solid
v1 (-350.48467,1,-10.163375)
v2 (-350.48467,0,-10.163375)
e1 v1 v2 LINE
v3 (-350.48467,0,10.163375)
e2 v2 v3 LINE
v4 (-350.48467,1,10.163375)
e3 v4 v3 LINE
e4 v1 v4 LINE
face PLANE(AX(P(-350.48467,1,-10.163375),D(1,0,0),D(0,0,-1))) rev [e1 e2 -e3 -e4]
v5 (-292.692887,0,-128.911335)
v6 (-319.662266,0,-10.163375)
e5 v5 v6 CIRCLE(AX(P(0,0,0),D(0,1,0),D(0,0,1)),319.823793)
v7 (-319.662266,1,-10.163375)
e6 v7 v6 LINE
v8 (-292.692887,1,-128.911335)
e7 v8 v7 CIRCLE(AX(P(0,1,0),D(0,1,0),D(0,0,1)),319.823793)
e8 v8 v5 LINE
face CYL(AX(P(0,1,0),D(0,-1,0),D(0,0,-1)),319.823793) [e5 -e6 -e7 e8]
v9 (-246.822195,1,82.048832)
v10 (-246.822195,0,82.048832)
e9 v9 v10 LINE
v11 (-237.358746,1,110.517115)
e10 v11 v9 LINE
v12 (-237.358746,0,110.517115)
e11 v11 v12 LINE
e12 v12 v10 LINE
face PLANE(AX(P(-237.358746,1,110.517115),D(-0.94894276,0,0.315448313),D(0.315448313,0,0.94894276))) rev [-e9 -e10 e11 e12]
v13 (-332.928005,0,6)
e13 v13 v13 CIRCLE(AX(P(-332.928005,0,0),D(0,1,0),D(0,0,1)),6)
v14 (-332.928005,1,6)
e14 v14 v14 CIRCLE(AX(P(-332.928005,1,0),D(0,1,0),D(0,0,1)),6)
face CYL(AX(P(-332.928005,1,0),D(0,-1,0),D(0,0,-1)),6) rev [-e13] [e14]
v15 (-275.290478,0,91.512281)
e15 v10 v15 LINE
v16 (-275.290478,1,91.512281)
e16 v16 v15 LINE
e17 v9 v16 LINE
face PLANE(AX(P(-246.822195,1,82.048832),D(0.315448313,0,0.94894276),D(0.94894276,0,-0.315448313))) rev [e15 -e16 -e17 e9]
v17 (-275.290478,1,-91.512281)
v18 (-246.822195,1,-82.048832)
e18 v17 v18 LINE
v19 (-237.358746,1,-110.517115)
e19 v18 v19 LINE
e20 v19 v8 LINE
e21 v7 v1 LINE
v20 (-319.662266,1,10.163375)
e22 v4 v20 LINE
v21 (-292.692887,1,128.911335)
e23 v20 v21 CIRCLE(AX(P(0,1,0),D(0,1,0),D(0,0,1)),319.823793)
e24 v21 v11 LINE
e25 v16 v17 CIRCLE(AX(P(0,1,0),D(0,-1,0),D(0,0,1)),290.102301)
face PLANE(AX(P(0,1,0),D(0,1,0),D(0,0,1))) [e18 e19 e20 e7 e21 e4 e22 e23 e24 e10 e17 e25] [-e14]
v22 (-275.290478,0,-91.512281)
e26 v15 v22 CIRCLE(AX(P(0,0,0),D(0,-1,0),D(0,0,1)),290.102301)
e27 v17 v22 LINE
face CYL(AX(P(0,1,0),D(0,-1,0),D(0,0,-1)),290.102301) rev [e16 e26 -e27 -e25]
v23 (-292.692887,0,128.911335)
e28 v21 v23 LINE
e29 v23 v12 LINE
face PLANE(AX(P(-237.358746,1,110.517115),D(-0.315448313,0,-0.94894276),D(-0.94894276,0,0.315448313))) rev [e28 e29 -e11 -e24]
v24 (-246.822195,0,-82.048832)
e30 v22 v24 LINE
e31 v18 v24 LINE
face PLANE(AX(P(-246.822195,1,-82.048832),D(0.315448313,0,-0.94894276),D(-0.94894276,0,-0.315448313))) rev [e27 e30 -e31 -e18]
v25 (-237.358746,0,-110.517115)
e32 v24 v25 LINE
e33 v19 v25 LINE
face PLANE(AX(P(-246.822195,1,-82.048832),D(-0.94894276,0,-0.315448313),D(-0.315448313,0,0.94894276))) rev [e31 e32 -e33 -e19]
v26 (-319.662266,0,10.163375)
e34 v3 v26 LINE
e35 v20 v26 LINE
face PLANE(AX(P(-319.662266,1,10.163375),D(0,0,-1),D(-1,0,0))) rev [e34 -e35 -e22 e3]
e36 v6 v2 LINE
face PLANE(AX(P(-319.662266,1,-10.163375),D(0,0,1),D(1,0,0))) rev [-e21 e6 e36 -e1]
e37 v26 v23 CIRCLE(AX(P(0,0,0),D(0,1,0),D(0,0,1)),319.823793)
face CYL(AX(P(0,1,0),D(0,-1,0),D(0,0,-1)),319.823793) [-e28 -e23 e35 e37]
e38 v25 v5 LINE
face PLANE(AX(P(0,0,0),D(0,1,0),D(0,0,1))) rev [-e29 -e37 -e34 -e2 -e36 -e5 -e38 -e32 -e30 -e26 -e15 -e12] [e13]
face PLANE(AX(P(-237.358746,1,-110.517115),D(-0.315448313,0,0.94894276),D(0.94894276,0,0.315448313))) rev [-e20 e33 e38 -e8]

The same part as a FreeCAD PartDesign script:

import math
import FreeCAD as App
import Part
import Sketcher
Q = App.Units.Quantity

doc = App.newDocument("Part")
params = doc.addObject("Spreadsheet::Sheet", "Params")
for row, (alias, value) in enumerate([
    ("sketch1_diameter", "12 mm"),
    ("sketch1_length", "30 mm"),
    ("pad1_length", "1 mm"),
], start=1):
    params.set(f"A{row}", alias)
    params.set(f"B{row}", "=" + value)
    params.setAlias(f"B{row}", alias)

body = doc.addObject("PartDesign::Body", "Body")

# Sketch on XZ plane
sketch1 = body.newObject("Sketcher::SketchObject", "Sketch")
sketch1.AttachmentSupport = (doc.getObject("XZ_Plane"), [""])
sketch1.MapMode = "FlatFace"
sketch1.addGeometry([
    Part.LineSegment(App.Vector(-275, -92, 0), App.Vector(-247, -82, 0)),  # 0
    Part.LineSegment(App.Vector(-247, -82, 0), App.Vector(-237, -111, 0)),  # 1
    Part.LineSegment(App.Vector(-237, -111, 0), App.Vector(-293, -129, 0)),  # 2
    Part.ArcOfCircle(Part.Circle(App.Vector(0, 0, 0), App.Vector(0, 0, 1), 320), math.radians(-178), math.radians(-156)),  # 3
    Part.LineSegment(App.Vector(-320, -10, 0), App.Vector(-350, -10, 0)),  # 4
    Part.LineSegment(App.Vector(-350, -10, 0), App.Vector(-350, 10, 0)),  # 5
    Part.LineSegment(App.Vector(-350, 10, 0), App.Vector(-320, 10, 0)),  # 6
    Part.ArcOfCircle(Part.Circle(App.Vector(0, 0, 0), App.Vector(0, 0, 1), 320), math.radians(156), math.radians(178)),  # 7
    Part.LineSegment(App.Vector(-293, 129, 0), App.Vector(-237, 111, 0)),  # 8
    Part.LineSegment(App.Vector(-237, 111, 0), App.Vector(-247, 82, 0)),  # 9
    Part.LineSegment(App.Vector(-247, 82, 0), App.Vector(-275, 92, 0)),  # 10
    Part.ArcOfCircle(Part.Circle(App.Vector(0, 0, 0), App.Vector(0, 0, 1), 290), math.radians(162), math.radians(198)),  # 11
    Part.Circle(App.Vector(-333, 0, 0), App.Vector(0, 0, 1), 6),  # 12
], False)
sketch1.addConstraint([
    Sketcher.Constraint("Coincident", 0, 2, 1, 1),
    Sketcher.Constraint("Coincident", 1, 2, 2, 1),
    Sketcher.Constraint("Coincident", 2, 2, 3, 2),
    Sketcher.Constraint("Coincident", 3, 1, 4, 1),
    Sketcher.Constraint("Coincident", 4, 2, 5, 1),
    Sketcher.Constraint("Coincident", 5, 2, 6, 1),
    Sketcher.Constraint("Coincident", 6, 2, 7, 2),
    Sketcher.Constraint("Coincident", 7, 1, 8, 1),
    Sketcher.Constraint("Coincident", 8, 2, 9, 1),
    Sketcher.Constraint("Coincident", 9, 2, 10, 1),
    Sketcher.Constraint("Coincident", 10, 2, 11, 1),
    Sketcher.Constraint("Coincident", 11, 2, 0, 1),
    Sketcher.Constraint("Horizontal", 4),
    Sketcher.Constraint("Vertical", 5),
    Sketcher.Constraint("Horizontal", 6),
    Sketcher.Constraint("Coincident", 3, 3, -1, 1),
    Sketcher.Constraint("Coincident", 7, 3, -1, 1),
    Sketcher.Constraint("Coincident", 11, 3, -1, 1),
    Sketcher.Constraint("Equal", 3, 7),
    Sketcher.Constraint("Symmetric", 1, 2, 8, 2, -1),
    Sketcher.Constraint("Symmetric", 0, 2, 9, 2, -1),
    Sketcher.Constraint("PointOnObject", 12, 3, -1),
    Sketcher.Constraint("Perpendicular", 0, 1),
    Sketcher.Constraint("Perpendicular", 1, 2),
    Sketcher.Constraint("Perpendicular", 8, 9),
    Sketcher.Constraint("Perpendicular", 9, 10),
    Sketcher.Constraint("Vertical", 3, 1, 6, 2),
    Sketcher.Constraint("Equal", 0, 1),
    Sketcher.Constraint("Diameter", 12, Q("12 mm")),
    Sketcher.Constraint("Distance", 0, Q("30 mm")),
    Sketcher.Constraint("Radius", 11, Q("290.102301 mm")),
    Sketcher.Constraint("Radius", 3, Q("319.823793 mm")),
    Sketcher.Constraint("DistanceY", 5, 1, 5, 2, Q("20.326751 mm")),
    Sketcher.Constraint("Distance", 2, Q("58.311359 mm")),
    Sketcher.Constraint("DistanceX", 4, 2, 4, 1, Q("30.822404 mm")),
    Sketcher.Constraint("DistanceY", 0, 2, -1, 1, Q("82.048832 mm")),
    Sketcher.Constraint("DistanceX", 12, 3, 0, 2, Q("86.10581 mm")),
])
sketch1.setExpression("Constraints[28]", "Params.sketch1_diameter")
sketch1.setExpression("Constraints[29]", "Params.sketch1_length")
pad1 = body.newObject("PartDesign::Pad", "Pad")
pad1.Profile = sketch1
pad1.setExpression("Length", "Params.pad1_length")
pad1.Reversed = True

doc.recompute()
